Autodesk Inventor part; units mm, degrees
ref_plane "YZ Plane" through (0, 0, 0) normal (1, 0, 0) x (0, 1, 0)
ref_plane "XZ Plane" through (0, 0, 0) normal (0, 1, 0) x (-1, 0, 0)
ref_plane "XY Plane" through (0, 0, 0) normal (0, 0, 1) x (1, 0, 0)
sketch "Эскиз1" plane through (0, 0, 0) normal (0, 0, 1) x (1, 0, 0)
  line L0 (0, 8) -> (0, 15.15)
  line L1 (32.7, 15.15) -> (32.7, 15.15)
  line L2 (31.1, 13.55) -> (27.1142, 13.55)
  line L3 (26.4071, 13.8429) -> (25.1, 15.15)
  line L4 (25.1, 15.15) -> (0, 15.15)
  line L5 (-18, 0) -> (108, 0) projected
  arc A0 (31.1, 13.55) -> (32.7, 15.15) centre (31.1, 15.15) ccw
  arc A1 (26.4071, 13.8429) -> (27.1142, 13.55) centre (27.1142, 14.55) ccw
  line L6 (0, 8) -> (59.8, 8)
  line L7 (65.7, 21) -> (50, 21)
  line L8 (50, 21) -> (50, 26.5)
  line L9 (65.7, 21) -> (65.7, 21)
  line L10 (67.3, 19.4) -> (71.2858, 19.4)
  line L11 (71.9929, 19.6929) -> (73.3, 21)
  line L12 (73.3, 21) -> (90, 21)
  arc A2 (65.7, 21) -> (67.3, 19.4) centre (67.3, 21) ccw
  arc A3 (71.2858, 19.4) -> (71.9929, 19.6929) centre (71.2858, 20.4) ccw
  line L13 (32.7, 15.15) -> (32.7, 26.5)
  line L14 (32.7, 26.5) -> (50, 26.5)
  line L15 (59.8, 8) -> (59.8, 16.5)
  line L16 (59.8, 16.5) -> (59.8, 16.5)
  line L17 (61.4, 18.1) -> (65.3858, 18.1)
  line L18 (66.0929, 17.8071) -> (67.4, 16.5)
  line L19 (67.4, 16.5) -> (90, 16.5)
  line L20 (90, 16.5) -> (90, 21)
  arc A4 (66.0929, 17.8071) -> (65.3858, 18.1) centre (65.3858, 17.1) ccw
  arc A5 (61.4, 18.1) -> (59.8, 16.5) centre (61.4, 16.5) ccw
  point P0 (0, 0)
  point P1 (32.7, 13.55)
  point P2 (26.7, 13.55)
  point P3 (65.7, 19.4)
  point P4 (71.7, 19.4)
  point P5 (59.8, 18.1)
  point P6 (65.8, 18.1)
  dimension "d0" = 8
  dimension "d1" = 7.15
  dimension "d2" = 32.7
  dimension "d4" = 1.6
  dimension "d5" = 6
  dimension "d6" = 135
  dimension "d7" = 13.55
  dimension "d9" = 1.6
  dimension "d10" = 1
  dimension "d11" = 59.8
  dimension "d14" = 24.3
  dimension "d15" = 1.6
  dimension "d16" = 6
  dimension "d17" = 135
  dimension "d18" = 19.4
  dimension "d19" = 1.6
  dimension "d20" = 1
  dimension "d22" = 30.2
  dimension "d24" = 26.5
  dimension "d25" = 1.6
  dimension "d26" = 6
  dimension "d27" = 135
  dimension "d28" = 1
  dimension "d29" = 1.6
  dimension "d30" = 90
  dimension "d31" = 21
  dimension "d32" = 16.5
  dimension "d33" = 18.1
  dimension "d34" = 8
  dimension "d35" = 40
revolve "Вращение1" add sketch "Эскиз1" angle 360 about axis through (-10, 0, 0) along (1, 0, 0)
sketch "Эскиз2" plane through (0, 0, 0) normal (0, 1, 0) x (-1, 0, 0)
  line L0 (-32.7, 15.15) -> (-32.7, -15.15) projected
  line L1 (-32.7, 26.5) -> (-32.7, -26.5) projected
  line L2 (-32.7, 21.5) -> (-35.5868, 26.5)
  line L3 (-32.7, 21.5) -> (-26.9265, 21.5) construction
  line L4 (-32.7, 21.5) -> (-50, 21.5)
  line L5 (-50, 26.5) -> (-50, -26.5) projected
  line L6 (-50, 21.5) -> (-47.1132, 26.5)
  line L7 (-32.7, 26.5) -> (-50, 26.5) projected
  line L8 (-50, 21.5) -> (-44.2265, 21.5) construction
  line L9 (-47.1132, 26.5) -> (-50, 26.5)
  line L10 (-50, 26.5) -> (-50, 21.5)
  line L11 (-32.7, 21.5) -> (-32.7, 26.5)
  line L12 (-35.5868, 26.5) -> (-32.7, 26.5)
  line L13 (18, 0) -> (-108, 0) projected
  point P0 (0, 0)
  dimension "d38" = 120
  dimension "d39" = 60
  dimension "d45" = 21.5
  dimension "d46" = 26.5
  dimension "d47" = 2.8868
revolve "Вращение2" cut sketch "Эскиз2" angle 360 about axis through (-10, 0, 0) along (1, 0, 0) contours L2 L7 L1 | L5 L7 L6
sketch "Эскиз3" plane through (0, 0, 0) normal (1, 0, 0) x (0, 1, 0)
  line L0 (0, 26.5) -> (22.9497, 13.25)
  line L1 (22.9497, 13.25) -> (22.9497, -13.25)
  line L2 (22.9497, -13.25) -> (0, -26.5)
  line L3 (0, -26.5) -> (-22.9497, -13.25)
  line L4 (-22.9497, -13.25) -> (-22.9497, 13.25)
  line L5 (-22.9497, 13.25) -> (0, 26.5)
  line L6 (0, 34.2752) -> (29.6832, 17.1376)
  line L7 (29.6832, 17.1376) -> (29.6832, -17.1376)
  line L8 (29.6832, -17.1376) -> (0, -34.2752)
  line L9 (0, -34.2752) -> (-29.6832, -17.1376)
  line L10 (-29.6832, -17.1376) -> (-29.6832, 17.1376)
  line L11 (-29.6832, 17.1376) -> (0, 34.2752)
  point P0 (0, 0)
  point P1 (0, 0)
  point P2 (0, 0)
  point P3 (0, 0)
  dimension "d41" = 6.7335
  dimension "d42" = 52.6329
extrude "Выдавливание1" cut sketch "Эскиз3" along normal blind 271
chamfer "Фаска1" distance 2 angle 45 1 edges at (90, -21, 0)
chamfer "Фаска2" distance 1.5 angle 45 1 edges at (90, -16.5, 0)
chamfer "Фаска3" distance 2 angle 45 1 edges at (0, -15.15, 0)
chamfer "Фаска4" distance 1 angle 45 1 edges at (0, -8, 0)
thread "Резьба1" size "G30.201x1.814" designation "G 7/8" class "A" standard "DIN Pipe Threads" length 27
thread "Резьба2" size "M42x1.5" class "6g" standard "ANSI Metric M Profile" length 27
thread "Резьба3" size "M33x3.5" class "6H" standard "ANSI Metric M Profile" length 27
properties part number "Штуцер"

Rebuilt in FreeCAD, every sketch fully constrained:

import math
import FreeCAD as App
import Part
import Sketcher
Q = App.Units.Quantity


def edges_at(feature, points):
    """Names of the edges that pass closest to the given points."""
    edges = feature.Shape.Edges
    near = lambda p: min(range(len(edges)), key=lambda i: edges[i].distToShape(Part.Vertex(*p))[0])
    return sorted({f"Edge{near(p) + 1}" for p in points})

doc = App.newDocument("Part")
body = doc.addObject("PartDesign::Body", "Body")

sketch1 = body.newObject("Sketcher::SketchObject", "Sketch")
sketch1.AttachmentSupport = (doc.getObject("XY_Plane"), [""])
sketch1.MapMode = "FlatFace"
sketch1.addGeometry([
    Part.LineSegment(App.Vector(0, 15.2, 0), App.Vector(0, 8, 0)),
    Part.LineSegment(App.Vector(0, 8, 0), App.Vector(59.8, 8, 0)),
    Part.LineSegment(App.Vector(59.8, 8, 0), App.Vector(59.8, 16.5, 0)),
    Part.ArcOfCircle(Part.Circle(App.Vector(61.4, 16.5, 0), App.Vector(0, 0, 1), 1.6), math.radians(90), math.radians(180)),
    Part.LineSegment(App.Vector(61.4, 18.1, 0), App.Vector(65.4, 18.1, 0)),
    Part.ArcOfCircle(Part.Circle(App.Vector(65.4, 17.1, 0), App.Vector(0, 0, 1), 1), math.radians(45), math.radians(90)),
    Part.LineSegment(App.Vector(66.1, 17.8, 0), App.Vector(67.4, 16.5, 0)),
    Part.LineSegment(App.Vector(67.4, 16.5, 0), App.Vector(90, 16.5, 0)),
    Part.LineSegment(App.Vector(90, 16.5, 0), App.Vector(90, 21, 0)),
    Part.LineSegment(App.Vector(90, 21, 0), App.Vector(73.3, 21, 0)),
    Part.LineSegment(App.Vector(73.3, 21, 0), App.Vector(72, 19.7, 0)),
    Part.ArcOfCircle(Part.Circle(App.Vector(71.3, 20.4, 0), App.Vector(0, 0, 1), 1), math.radians(-90), math.radians(-45)),
    Part.LineSegment(App.Vector(71.3, 19.4, 0), App.Vector(67.3, 19.4, 0)),
    Part.ArcOfCircle(Part.Circle(App.Vector(67.3, 21, 0), App.Vector(0, 0, 1), 1.6), math.radians(180), math.radians(270)),
    Part.LineSegment(App.Vector(65.7, 21, 0), App.Vector(50, 21, 0)),
    Part.LineSegment(App.Vector(50, 21, 0), App.Vector(50, 26.5, 0)),
    Part.LineSegment(App.Vector(50, 26.5, 0), App.Vector(32.7, 26.5, 0)),
    Part.LineSegment(App.Vector(32.7, 26.5, 0), App.Vector(32.7, 15.2, 0)),
    Part.ArcOfCircle(Part.Circle(App.Vector(31.1, 15.2, 0), App.Vector(0, 0, 1), 1.6), math.radians(-90), math.radians(0)),
    Part.LineSegment(App.Vector(31.1, 13.6, 0), App.Vector(27.1, 13.6, 0)),
    Part.ArcOfCircle(Part.Circle(App.Vector(27.1, 14.6, 0), App.Vector(0, 0, 1), 1), math.radians(-135), math.radians(-90)),
    Part.LineSegment(App.Vector(26.4, 13.8, 0), App.Vector(25.1, 15.2, 0)),
    Part.LineSegment(App.Vector(25.1, 15.2, 0), App.Vector(0, 15.2, 0)),
], False)
sketch1.addConstraint([
    Sketcher.Constraint("Coincident", 0, 2, 1, 1),
    Sketcher.Constraint("Coincident", 1, 2, 2, 1),
    Sketcher.Constraint("Tangent", 2, 2, 3, 2),
    Sketcher.Constraint("Tangent", 3, 1, 4, 1),
    Sketcher.Constraint("Tangent", 4, 2, 5, 2),
    Sketcher.Constraint("Tangent", 5, 1, 6, 1),
    Sketcher.Constraint("Coincident", 6, 2, 7, 1),
    Sketcher.Constraint("Coincident", 7, 2, 8, 1),
    Sketcher.Constraint("Coincident", 8, 2, 9, 1),
    Sketcher.Constraint("Coincident", 9, 2, 10, 1),
    Sketcher.Constraint("Tangent", 10, 2, 11, 2),
    Sketcher.Constraint("Tangent", 11, 1, 12, 1),
    Sketcher.Constraint("Tangent", 12, 2, 13, 2),
    Sketcher.Constraint("Coincident", 13, 1, 14, 1),
    Sketcher.Constraint("Coincident", 14, 2, 15, 1),
    Sketcher.Constraint("Coincident", 15, 2, 16, 1),
    Sketcher.Constraint("Coincident", 16, 2, 17, 1),
    Sketcher.Constraint("Tangent", 17, 2, 18, 2),
    Sketcher.Constraint("Tangent", 18, 1, 19, 1),
    Sketcher.Constraint("Tangent", 19, 2, 20, 2),
    Sketcher.Constraint("Tangent", 20, 1, 21, 1),
    Sketcher.Constraint("Coincident", 21, 2, 22, 1),
    Sketcher.Constraint("Coincident", 22, 2, 0, 1),
    Sketcher.Constraint("Vertical", 0),
    Sketcher.Constraint("Horizontal", 1),
    Sketcher.Constraint("Vertical", 2),
    Sketcher.Constraint("Horizontal", 4),
    Sketcher.Constraint("Horizontal", 7),
    Sketcher.Constraint("Vertical", 8),
    Sketcher.Constraint("Horizontal", 9),
    Sketcher.Constraint("Horizontal", 12),
    Sketcher.Constraint("Horizontal", 14),
    Sketcher.Constraint("Vertical", 15),
    Sketcher.Constraint("Horizontal", 16),
    Sketcher.Constraint("Vertical", 17),
    Sketcher.Constraint("Horizontal", 19),
    Sketcher.Constraint("Horizontal", 22),
    Sketcher.Constraint("Equal", 5, 11),
    Sketcher.Constraint("Equal", 3, 13),
    Sketcher.Constraint("Equal", 13, 18),
    Sketcher.Constraint("Equal", 11, 20),
    Sketcher.Constraint("PointOnObject", 0, 2, -2),
    Sketcher.Constraint("Perpendicular", 6, 10),
    Sketcher.Constraint("Perpendicular", 10, 21),
    Sketcher.Constraint("Horizontal", 2, 2, 6, 2),
    Sketcher.Constraint("Horizontal", 13, 3, 8, 2),
    Sketcher.Constraint("Horizontal", 9, 2, 13, 1),
    Sketcher.Constraint("Horizontal", 17, 2, 21, 2),
    Sketcher.Constraint("Equal", 4, 12),
    Sketcher.Constraint("Equal", 12, 19),
    Sketcher.Constraint("Equal", 6, 10),
    Sketcher.Constraint("Radius", 5, 1.0),
    Sketcher.Constraint("Radius", 3, 1.6),
    Sketcher.Constraint("DistanceX", 1, 1, 1, 2, 59.8),
    Sketcher.Constraint("DistanceY", -1, 1, 13, 3, 21.0),
    Sketcher.Constraint("DistanceY", -1, 1, 0, 2, 8.0),
    Sketcher.Constraint("DistanceX", -1, 1, 7, 2, 90.0),
    Sketcher.Constraint("DistanceX", 13, 3, 9, 2, 6.0),
    Sketcher.Constraint("DistanceY", 0, 2, 0, 1, 7.15),
    Sketcher.Constraint("DistanceY", -1, 1, 3, 3, 16.5),
    Sketcher.Constraint("DistanceY", -1, 1, 15, 2, 26.5),
    Sketcher.Constraint("DistanceX", -1, 1, 16, 2, 32.7),
    Sketcher.Constraint("DistanceX", 9, 2, 9, 1, 16.7),
    Sketcher.Constraint("DistanceX", 14, 2, 14, 1, 15.7),
])
revolution = body.newObject("PartDesign::Revolution", "Revolution")
revolution.Profile = sketch1
revolution.ReferenceAxis = (sketch1, ["H_Axis"])
revolution.Angle = 360

sketch2 = body.newObject("Sketcher::SketchObject", "Sketch001")
sketch2.AttachmentSupport = (doc.getObject("XZ_Plane"), [""])
sketch2.MapMode = "FlatFace"
sketch2.addGeometry([
    Part.LineSegment(App.Vector(35.6, 26.5, 0), App.Vector(32.7, 21.5, 0)),
    Part.LineSegment(App.Vector(32.7, 21.5, 0), App.Vector(32.7, 26.5, 0)),
    Part.LineSegment(App.Vector(32.7, 26.5, 0), App.Vector(35.6, 26.5, 0)),
    Part.LineSegment(App.Vector(50, 26.5, 0), App.Vector(50, 21.5, 0)),
    Part.LineSegment(App.Vector(50, 21.5, 0), App.Vector(47.1, 26.5, 0)),
    Part.LineSegment(App.Vector(47.1, 26.5, 0), App.Vector(50, 26.5, 0)),
], False)
sketch2.addConstraint([
    Sketcher.Constraint("Coincident", 0, 2, 1, 1),
    Sketcher.Constraint("Coincident", 1, 2, 2, 1),
    Sketcher.Constraint("Coincident", 2, 2, 0, 1),
    Sketcher.Constraint("Coincident", 3, 2, 4, 1),
    Sketcher.Constraint("Coincident", 4, 2, 5, 1),
    Sketcher.Constraint("Coincident", 5, 2, 3, 1),
    Sketcher.Constraint("Vertical", 1),
    Sketcher.Constraint("Horizontal", 2),
    Sketcher.Constraint("Vertical", 3),
    Sketcher.Constraint("Horizontal", 5),
    Sketcher.Constraint("Horizontal", 0, 2, 3, 2),
    Sketcher.Constraint("Horizontal", 2, 2, 4, 2),
    Sketcher.Constraint("Equal", 2, 5),
    Sketcher.Constraint("Angle", 0, Q("-120.0004 deg")),
    Sketcher.Constraint("DistanceY", -1, 1, 0, 2, 21.5),
    Sketcher.Constraint("DistanceY", -1, 1, 1, 2, 26.5),
    Sketcher.Constraint("DistanceX", -1, 1, 3, 2, 50.0),
    Sketcher.Constraint("DistanceX", -1, 1, 0, 2, 32.7),
])
groove = body.newObject("PartDesign::Groove", "Groove")
groove.Profile = sketch2
groove.ReferenceAxis = (sketch2, ["H_Axis"])
groove.Angle = 360

sketch3 = body.newObject("Sketcher::SketchObject", "Sketch002")
sketch3.AttachmentSupport = (doc.getObject("YZ_Plane"), [""])
sketch3.MapMode = "FlatFace"
sketch3.addGeometry([
    Part.LineSegment(App.Vector(30, 17, 0), App.Vector(0, 34, 0)),
    Part.LineSegment(App.Vector(0, 34, 0), App.Vector(-30, 17, 0)),
    Part.LineSegment(App.Vector(-30, 17, 0), App.Vector(-30, -17, 0)),
    Part.LineSegment(App.Vector(-30, -17, 0), App.Vector(0, -34, 0)),
    Part.LineSegment(App.Vector(0, -34, 0), App.Vector(30, -17, 0)),
    Part.LineSegment(App.Vector(30, -17, 0), App.Vector(30, 17, 0)),
    Part.LineSegment(App.Vector(-23, 13, 0), App.Vector(0, 26, 0)),
    Part.LineSegment(App.Vector(0, 26, 0), App.Vector(23, 13, 0)),
    Part.LineSegment(App.Vector(23, 13, 0), App.Vector(23, -13, 0)),
    Part.LineSegment(App.Vector(23, -13, 0), App.Vector(0, -26, 0)),
    Part.LineSegment(App.Vector(0, -26, 0), App.Vector(-23, -13, 0)),
    Part.LineSegment(App.Vector(-23, -13, 0), App.Vector(-23, 13, 0)),
], False)
sketch3.addConstraint([
    Sketcher.Constraint("Coincident", 0, 2, 1, 1),
    Sketcher.Constraint("Coincident", 1, 2, 2, 1),
    Sketcher.Constraint("Coincident", 2, 2, 3, 1),
    Sketcher.Constraint("Coincident", 3, 2, 4, 1),
    Sketcher.Constraint("Coincident", 4, 2, 5, 1),
    Sketcher.Constraint("Coincident", 5, 2, 0, 1),
    Sketcher.Constraint("Coincident", 6, 2, 7, 1),
    Sketcher.Constraint("Coincident", 7, 2, 8, 1),
    Sketcher.Constraint("Coincident", 8, 2, 9, 1),
    Sketcher.Constraint("Coincident", 9, 2, 10, 1),
    Sketcher.Constraint("Coincident", 10, 2, 11, 1),
    Sketcher.Constraint("Coincident", 11, 2, 6, 1),
    Sketcher.Constraint("Vertical", 2),
    Sketcher.Constraint("Vertical", 5),
    Sketcher.Constraint("Vertical", 8),
    Sketcher.Constraint("Vertical", 11),
    Sketcher.Constraint("Symmetric", 0, 2, 3, 2, -1, 1),
    Sketcher.Constraint("Symmetric", 1, 2, 4, 2, -1, 1),
    Sketcher.Constraint("Symmetric", 6, 2, 9, 2, -1, 1),
    Sketcher.Constraint("Symmetric", 7, 2, 10, 2, -1, 1),
    Sketcher.Constraint("PointOnObject", 0, 2, -2),
    Sketcher.Constraint("PointOnObject", 6, 2, -2),
    Sketcher.Constraint("Parallel", 0, 3),
    Sketcher.Constraint("Parallel", 4, 6),
    Sketcher.Constraint("Parallel", 3, 7),
    Sketcher.Constraint("Parallel", 6, 9),
    Sketcher.Constraint("Horizontal", 2, 2, 4, 2),
    Sketcher.Constraint("Angle", 0, Q("150 deg")),
    Sketcher.Constraint("DistanceY", 8, 2, 8, 1, 26.5),
    Sketcher.Constraint("Distance", 6, 26.5),
    Sketcher.Constraint("DistanceX", 7, 2, 5, 2, 6.7335),
    Sketcher.Constraint("DistanceY", 2, 2, 2, 1, 34.2752),
])
pocket1 = body.newObject("PartDesign::Pocket", "Pocket")
pocket1.Profile = sketch3
pocket1.Length = 271
pocket1.Reversed = True
doc.recompute()

chamfer = body.newObject("PartDesign::Chamfer", "Chamfer")
chamfer.Base = (pocket1, edges_at(pocket1, [(90, -21, 0)]))
chamfer.Size = 2
doc.recompute()

chamfer2 = body.newObject("PartDesign::Chamfer", "Chamfer001")
chamfer2.Base = (chamfer, edges_at(chamfer, [(90, -16.5, 0)]))
chamfer2.Size = 1.5
doc.recompute()

chamfer3 = body.newObject("PartDesign::Chamfer", "Chamfer002")
chamfer3.Base = (chamfer2, edges_at(chamfer2, [(0, -15.15, 0)]))
chamfer3.Size = 2
doc.recompute()

chamfer4 = body.newObject("PartDesign::Chamfer", "Chamfer003")
chamfer4.Base = (chamfer3, edges_at(chamfer3, [(0, -8, 0)]))
chamfer4.Size = 1

doc.recompute()
